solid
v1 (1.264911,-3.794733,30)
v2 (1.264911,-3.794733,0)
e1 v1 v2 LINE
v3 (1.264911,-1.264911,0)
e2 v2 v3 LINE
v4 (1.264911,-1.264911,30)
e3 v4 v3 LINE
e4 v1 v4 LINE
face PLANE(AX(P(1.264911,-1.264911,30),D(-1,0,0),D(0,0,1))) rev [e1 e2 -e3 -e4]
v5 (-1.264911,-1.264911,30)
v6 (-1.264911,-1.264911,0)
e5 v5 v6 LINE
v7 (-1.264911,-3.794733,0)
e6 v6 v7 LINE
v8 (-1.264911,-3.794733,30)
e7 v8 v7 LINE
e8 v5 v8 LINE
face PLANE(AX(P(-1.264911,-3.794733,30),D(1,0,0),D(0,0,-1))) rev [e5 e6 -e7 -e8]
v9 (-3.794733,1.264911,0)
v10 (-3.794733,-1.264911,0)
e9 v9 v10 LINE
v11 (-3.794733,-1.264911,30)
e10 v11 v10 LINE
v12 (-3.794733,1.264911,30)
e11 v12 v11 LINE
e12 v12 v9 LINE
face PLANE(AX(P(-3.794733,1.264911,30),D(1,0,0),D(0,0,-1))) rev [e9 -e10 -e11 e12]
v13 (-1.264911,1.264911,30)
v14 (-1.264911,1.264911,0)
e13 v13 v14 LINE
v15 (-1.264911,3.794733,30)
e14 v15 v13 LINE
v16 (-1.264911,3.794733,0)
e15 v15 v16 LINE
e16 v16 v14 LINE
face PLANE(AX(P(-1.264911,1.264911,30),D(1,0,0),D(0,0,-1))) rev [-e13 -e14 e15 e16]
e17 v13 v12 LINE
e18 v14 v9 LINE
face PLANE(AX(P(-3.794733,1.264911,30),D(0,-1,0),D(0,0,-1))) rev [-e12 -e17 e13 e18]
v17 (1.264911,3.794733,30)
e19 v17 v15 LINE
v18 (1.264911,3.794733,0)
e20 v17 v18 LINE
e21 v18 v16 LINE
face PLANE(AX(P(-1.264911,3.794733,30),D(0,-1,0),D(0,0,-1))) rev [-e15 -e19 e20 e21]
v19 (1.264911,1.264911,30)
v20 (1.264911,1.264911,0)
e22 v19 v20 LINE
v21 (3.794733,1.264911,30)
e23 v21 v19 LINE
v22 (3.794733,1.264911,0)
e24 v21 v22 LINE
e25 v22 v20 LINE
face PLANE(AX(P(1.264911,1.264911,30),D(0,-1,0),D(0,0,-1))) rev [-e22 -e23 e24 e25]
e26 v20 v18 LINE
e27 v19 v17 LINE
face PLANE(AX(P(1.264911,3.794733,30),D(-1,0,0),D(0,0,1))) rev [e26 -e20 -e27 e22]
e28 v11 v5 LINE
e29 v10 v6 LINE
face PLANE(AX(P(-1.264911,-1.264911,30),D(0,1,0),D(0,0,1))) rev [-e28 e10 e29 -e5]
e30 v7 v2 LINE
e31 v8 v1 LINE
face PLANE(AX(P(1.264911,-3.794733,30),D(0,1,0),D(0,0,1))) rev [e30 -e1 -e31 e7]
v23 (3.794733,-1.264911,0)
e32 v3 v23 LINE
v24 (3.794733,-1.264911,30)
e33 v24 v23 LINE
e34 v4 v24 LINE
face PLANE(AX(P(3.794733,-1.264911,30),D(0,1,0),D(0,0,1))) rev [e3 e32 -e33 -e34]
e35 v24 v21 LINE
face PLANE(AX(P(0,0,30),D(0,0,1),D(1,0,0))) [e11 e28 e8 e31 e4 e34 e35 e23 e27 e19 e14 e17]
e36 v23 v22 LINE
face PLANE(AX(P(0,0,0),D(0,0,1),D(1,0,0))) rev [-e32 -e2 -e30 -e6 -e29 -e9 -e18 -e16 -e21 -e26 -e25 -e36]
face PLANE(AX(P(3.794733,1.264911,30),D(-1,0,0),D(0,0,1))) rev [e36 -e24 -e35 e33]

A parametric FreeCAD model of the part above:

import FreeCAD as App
import Part
import Sketcher
from FreeCAD import Vector


def add_polygon(sketch, points):
    """Adds a closed chain of lines whose ends are joined by coincident constraints."""
    first, n = sketch.GeometryCount, len(points)
    for a, b in zip(points, points[1:] + points[:1]):
        sketch.addGeometry(Part.LineSegment(App.Vector(*a, 0), App.Vector(*b, 0)), False)
    for i in range(n):
        sketch.addConstraint(Sketcher.Constraint("Coincident", first + i, 2, first + (i + 1) % n, 1))

doc = App.newDocument("Part")
body = doc.addObject("PartDesign::Body", "Body")

# Sketch on XY plane
sketch1 = doc.addObject("Sketcher::SketchObject", "Sketch")
body.addObject(sketch1)
sketch1.AttachmentSupport = (doc.XY_Plane, [""])
sketch1.MapMode = "FlatFace"
add_polygon(sketch1, [(-3.794733, 1.264911), (-3.794733, -1.264911), (-1.264911, -1.264911), (-1.264911, -3.794733), (1.264911, -3.794733), (1.264911, -1.264911), (3.794733, -1.264911), (3.794733, 1.264911), (1.264911, 1.264911), (1.264911, 3.794733), (-1.264911, 3.794733), (-1.264911, 1.264911)])  # lines 0-11
sketch1.addConstraint([
    Sketcher.Constraint("Vertical", 0),
    Sketcher.Constraint("Horizontal", 1),
    Sketcher.Constraint("Vertical", 2),
    Sketcher.Constraint("Horizontal", 3),
    Sketcher.Constraint("Vertical", 4),
    Sketcher.Constraint("Horizontal", 5),
    Sketcher.Constraint("Vertical", 6),
    Sketcher.Constraint("Horizontal", 7),
    Sketcher.Constraint("Vertical", 8),
    Sketcher.Constraint("Horizontal", 9),
    Sketcher.Constraint("Vertical", 10),
    Sketcher.Constraint("Horizontal", 11),
    Sketcher.Constraint("Symmetric", 0, 2, 6, 2, -1, 1),
    Sketcher.Constraint("Symmetric", 2, 2, 8, 2, -1, 1),
    Sketcher.Constraint("Symmetric", 4, 2, 10, 2, -1, 1),
    Sketcher.Constraint("Symmetric", 1, 2, 4, 2, -2),
    Sketcher.Constraint("Equal", 1, 3),
    Sketcher.Constraint("Equal", 11, 0),
    Sketcher.Constraint("Equal", 0, 2),
    Sketcher.Constraint("DistanceX", 1, 1, 1, 2, 2.529822),
])
pad1 = doc.addObject("PartDesign::Pad", "Pad")
body.addObject(pad1)
pad1.Profile = sketch1
pad1.Length = 30

doc.recompute()
